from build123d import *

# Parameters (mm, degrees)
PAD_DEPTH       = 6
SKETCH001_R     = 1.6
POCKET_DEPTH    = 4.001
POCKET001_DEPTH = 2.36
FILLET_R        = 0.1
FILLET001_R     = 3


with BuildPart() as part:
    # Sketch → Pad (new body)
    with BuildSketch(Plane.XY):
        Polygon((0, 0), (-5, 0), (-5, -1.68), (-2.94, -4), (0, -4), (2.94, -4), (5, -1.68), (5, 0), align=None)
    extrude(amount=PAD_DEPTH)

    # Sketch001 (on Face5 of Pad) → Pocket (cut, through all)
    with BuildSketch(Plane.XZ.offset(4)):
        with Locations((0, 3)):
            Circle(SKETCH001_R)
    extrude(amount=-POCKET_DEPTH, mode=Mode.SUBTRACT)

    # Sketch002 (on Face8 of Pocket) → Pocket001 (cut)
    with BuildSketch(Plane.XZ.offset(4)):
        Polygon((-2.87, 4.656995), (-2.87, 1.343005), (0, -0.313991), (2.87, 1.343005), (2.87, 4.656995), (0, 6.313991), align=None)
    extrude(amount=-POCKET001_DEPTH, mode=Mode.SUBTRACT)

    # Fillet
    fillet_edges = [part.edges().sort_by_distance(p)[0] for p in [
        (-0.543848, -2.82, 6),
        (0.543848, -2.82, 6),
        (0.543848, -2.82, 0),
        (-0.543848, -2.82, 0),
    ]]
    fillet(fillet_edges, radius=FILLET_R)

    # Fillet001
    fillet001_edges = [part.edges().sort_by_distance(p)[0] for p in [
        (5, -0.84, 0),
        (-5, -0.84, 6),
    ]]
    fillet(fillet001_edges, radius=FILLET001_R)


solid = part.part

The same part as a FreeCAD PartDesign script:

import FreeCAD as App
import Part
import Sketcher
from FreeCAD import Vector
Q = App.Units.Quantity


def edges_at(feature, points):
    """Names of the edges that pass closest to the given points."""
    edges = feature.Shape.Edges
    near = lambda p: min(range(len(edges)), key=lambda i: edges[i].distToShape(Part.Vertex(*p))[0])
    return sorted({f"Edge{near(p) + 1}" for p in points})


def add_polygon(sketch, points):
    """Adds a closed chain of lines whose ends are joined by coincident constraints."""
    first, n = sketch.GeometryCount, len(points)
    for a, b in zip(points, points[1:] + points[:1]):
        sketch.addGeometry(Part.LineSegment(App.Vector(*a, 0), App.Vector(*b, 0)), False)
    for i in range(n):
        sketch.addConstraint(Sketcher.Constraint("Coincident", first + i, 2, first + (i + 1) % n, 1))

doc = App.newDocument("Part")
params = doc.addObject("Spreadsheet::Sheet", "Params")
for row, (alias, value) in enumerate([
    ("sketch1_width", "10 mm"),
    ("sketch1_width2", "5.88 mm"),
    ("sketch1_height", "1.68 mm"),
    ("pad1_length", "6 mm"),
    ("sketch2_diameter", "3.2 mm"),
    ("pocket2_length", "2.36 mm"),
    ("fillet_radius", "0.1 mm"),
    ("fillet2_radius", "3 mm"),
], start=1):
    params.set(f"A{row}", alias)
    params.set(f"B{row}", "=" + value)
    params.setAlias(f"B{row}", alias)

body = doc.addObject("PartDesign::Body", "Body")

# Sketch on XY plane
sketch1 = doc.addObject("Sketcher::SketchObject", "Sketch")
body.addObject(sketch1)
sketch1.AttachmentSupport = (doc.XY_Plane, [""])
sketch1.MapMode = "FlatFace"
add_polygon(sketch1, [(-5, 0), (-5, -1.7), (-2.9, -4), (2.9, -4), (5, -1.7), (5, 0)])  # lines 0-5
sketch1.addConstraint(Sketcher.Constraint("Vertical", 0))
sketch1.addConstraint(Sketcher.Constraint("Horizontal", 2))
sketch1.addConstraint(Sketcher.Constraint("Vertical", 4))
sketch1.addConstraint(Sketcher.Constraint("Horizontal", 5))
sketch1.addConstraint(Sketcher.Constraint("Symmetric", 4, 2, 5, 2, -1, 1))
sketch1.addConstraint(Sketcher.Constraint("Horizontal", 0, 2, 3, 2))
sketch1.addConstraint(Sketcher.Constraint("Equal", 1, 3))
sketch1.addConstraint(Sketcher.Constraint("DistanceX", 5, 2, 5, 1, 10.0))
sketch1.addConstraint(Sketcher.Constraint("DistanceY", 1, 2, -1, 1, 4.0))
sketch1.addConstraint(Sketcher.Constraint("DistanceX", 2, 1, 2, 2, 5.88))
sketch1.addConstraint(Sketcher.Constraint("DistanceY", 0, 2, 0, 1, 1.68))
sketch1.setExpression("Constraints[13]", "Params.sketch1_width")
sketch1.setExpression("Constraints[15]", "Params.sketch1_width2")
sketch1.setExpression("Constraints[16]", "Params.sketch1_height")
pad1 = doc.addObject("PartDesign::Pad", "Pad")
body.addObject(pad1)
pad1.Profile = sketch1
pad1.setExpression("Length", "Params.pad1_length")

# Sketch on XZ plane
sketch2 = doc.addObject("Sketcher::SketchObject", "Sketch001")
body.addObject(sketch2)
sketch2.AttachmentSupport = (doc.XZ_Plane, [""])
sketch2.MapMode = "FlatFace"
sketch2.AttachmentOffset = App.Placement(Vector(0, 0, 4), App.Rotation())
sketch2.addGeometry(Part.Circle(Vector(0, 3, 0), Vector(0, 0, 1), 1.6), False)
sketch2.addConstraint(Sketcher.Constraint("PointOnObject", 0, 3, -2))
sketch2.addConstraint(Sketcher.Constraint("Diameter", 0, 3.2))
sketch2.addConstraint(Sketcher.Constraint("DistanceY", -1, 1, 0, 3, 3.0))
sketch2.setExpression("Constraints[1]", "Params.sketch2_diameter")
pocket1 = doc.addObject("PartDesign::Pocket", "Pocket")
body.addObject(pocket1)
pocket1.Profile = sketch2
pocket1.Type = "ThroughAll"

# Sketch on XZ plane
sketch3 = doc.addObject("Sketcher::SketchObject", "Sketch002")
body.addObject(sketch3)
sketch3.AttachmentSupport = (doc.XZ_Plane, [""])
sketch3.MapMode = "FlatFace"
sketch3.AttachmentOffset = App.Placement(Vector(0, 0, 4), App.Rotation())
add_polygon(sketch3, [(-2.9, 4.7), (-2.9, 1.3), (0, -0.3), (2.9, 1.3), (2.9, 4.7), (0, 6.3)])  # lines 0-5
sketch3.addConstraint(Sketcher.Constraint("Vertical", 0))
sketch3.addConstraint(Sketcher.Constraint("Vertical", 3))
sketch3.addConstraint(Sketcher.Constraint("Symmetric", 0, 2, 2, 2, -2))
sketch3.addConstraint(Sketcher.Constraint("PointOnObject", 1, 2, -2))
sketch3.addConstraint(Sketcher.Constraint("PointOnObject", 4, 2, -2))
sketch3.addConstraint(Sketcher.Constraint("Parallel", 1, 4))
sketch3.addConstraint(Sketcher.Constraint("Parallel", 2, 5))
sketch3.addConstraint(Sketcher.Constraint("Angle", 1, Q("-30.000011 deg")))
sketch3.addConstraint(Sketcher.Constraint("DistanceX", 0, 2, -1, 1, 2.87))
sketch3.addConstraint(Sketcher.Constraint("DistanceY", 0, 2, 0, 1, 3.31399))
sketch3.addConstraint(Sketcher.Constraint("DistanceY", 1, 2, -1, 1, 0.313991))
pocket2 = doc.addObject("PartDesign::Pocket", "Pocket001")
body.addObject(pocket2)
pocket2.Profile = sketch3
pocket2.setExpression("Length", "Params.pocket2_length")
doc.recompute()

fillet = doc.addObject("PartDesign::Fillet", "Fillet")
body.addObject(fillet)
fillet.Base = (pocket2, edges_at(pocket2, [
    (-0.544, -2.82, 6),
    (0.544, -2.82, 6),
    (0.544, -2.82, 0),
    (-0.544, -2.82, 0),
]))
fillet.setExpression("Radius", "Params.fillet_radius")
doc.recompute()

fillet2 = doc.addObject("PartDesign::Fillet", "Fillet001")
body.addObject(fillet2)
fillet2.Base = (fillet, edges_at(fillet, [(5, -0.84, 0), (-5, -0.84, 6)]))
fillet2.setExpression("Radius", "Params.fillet2_radius")

doc.recompute()
